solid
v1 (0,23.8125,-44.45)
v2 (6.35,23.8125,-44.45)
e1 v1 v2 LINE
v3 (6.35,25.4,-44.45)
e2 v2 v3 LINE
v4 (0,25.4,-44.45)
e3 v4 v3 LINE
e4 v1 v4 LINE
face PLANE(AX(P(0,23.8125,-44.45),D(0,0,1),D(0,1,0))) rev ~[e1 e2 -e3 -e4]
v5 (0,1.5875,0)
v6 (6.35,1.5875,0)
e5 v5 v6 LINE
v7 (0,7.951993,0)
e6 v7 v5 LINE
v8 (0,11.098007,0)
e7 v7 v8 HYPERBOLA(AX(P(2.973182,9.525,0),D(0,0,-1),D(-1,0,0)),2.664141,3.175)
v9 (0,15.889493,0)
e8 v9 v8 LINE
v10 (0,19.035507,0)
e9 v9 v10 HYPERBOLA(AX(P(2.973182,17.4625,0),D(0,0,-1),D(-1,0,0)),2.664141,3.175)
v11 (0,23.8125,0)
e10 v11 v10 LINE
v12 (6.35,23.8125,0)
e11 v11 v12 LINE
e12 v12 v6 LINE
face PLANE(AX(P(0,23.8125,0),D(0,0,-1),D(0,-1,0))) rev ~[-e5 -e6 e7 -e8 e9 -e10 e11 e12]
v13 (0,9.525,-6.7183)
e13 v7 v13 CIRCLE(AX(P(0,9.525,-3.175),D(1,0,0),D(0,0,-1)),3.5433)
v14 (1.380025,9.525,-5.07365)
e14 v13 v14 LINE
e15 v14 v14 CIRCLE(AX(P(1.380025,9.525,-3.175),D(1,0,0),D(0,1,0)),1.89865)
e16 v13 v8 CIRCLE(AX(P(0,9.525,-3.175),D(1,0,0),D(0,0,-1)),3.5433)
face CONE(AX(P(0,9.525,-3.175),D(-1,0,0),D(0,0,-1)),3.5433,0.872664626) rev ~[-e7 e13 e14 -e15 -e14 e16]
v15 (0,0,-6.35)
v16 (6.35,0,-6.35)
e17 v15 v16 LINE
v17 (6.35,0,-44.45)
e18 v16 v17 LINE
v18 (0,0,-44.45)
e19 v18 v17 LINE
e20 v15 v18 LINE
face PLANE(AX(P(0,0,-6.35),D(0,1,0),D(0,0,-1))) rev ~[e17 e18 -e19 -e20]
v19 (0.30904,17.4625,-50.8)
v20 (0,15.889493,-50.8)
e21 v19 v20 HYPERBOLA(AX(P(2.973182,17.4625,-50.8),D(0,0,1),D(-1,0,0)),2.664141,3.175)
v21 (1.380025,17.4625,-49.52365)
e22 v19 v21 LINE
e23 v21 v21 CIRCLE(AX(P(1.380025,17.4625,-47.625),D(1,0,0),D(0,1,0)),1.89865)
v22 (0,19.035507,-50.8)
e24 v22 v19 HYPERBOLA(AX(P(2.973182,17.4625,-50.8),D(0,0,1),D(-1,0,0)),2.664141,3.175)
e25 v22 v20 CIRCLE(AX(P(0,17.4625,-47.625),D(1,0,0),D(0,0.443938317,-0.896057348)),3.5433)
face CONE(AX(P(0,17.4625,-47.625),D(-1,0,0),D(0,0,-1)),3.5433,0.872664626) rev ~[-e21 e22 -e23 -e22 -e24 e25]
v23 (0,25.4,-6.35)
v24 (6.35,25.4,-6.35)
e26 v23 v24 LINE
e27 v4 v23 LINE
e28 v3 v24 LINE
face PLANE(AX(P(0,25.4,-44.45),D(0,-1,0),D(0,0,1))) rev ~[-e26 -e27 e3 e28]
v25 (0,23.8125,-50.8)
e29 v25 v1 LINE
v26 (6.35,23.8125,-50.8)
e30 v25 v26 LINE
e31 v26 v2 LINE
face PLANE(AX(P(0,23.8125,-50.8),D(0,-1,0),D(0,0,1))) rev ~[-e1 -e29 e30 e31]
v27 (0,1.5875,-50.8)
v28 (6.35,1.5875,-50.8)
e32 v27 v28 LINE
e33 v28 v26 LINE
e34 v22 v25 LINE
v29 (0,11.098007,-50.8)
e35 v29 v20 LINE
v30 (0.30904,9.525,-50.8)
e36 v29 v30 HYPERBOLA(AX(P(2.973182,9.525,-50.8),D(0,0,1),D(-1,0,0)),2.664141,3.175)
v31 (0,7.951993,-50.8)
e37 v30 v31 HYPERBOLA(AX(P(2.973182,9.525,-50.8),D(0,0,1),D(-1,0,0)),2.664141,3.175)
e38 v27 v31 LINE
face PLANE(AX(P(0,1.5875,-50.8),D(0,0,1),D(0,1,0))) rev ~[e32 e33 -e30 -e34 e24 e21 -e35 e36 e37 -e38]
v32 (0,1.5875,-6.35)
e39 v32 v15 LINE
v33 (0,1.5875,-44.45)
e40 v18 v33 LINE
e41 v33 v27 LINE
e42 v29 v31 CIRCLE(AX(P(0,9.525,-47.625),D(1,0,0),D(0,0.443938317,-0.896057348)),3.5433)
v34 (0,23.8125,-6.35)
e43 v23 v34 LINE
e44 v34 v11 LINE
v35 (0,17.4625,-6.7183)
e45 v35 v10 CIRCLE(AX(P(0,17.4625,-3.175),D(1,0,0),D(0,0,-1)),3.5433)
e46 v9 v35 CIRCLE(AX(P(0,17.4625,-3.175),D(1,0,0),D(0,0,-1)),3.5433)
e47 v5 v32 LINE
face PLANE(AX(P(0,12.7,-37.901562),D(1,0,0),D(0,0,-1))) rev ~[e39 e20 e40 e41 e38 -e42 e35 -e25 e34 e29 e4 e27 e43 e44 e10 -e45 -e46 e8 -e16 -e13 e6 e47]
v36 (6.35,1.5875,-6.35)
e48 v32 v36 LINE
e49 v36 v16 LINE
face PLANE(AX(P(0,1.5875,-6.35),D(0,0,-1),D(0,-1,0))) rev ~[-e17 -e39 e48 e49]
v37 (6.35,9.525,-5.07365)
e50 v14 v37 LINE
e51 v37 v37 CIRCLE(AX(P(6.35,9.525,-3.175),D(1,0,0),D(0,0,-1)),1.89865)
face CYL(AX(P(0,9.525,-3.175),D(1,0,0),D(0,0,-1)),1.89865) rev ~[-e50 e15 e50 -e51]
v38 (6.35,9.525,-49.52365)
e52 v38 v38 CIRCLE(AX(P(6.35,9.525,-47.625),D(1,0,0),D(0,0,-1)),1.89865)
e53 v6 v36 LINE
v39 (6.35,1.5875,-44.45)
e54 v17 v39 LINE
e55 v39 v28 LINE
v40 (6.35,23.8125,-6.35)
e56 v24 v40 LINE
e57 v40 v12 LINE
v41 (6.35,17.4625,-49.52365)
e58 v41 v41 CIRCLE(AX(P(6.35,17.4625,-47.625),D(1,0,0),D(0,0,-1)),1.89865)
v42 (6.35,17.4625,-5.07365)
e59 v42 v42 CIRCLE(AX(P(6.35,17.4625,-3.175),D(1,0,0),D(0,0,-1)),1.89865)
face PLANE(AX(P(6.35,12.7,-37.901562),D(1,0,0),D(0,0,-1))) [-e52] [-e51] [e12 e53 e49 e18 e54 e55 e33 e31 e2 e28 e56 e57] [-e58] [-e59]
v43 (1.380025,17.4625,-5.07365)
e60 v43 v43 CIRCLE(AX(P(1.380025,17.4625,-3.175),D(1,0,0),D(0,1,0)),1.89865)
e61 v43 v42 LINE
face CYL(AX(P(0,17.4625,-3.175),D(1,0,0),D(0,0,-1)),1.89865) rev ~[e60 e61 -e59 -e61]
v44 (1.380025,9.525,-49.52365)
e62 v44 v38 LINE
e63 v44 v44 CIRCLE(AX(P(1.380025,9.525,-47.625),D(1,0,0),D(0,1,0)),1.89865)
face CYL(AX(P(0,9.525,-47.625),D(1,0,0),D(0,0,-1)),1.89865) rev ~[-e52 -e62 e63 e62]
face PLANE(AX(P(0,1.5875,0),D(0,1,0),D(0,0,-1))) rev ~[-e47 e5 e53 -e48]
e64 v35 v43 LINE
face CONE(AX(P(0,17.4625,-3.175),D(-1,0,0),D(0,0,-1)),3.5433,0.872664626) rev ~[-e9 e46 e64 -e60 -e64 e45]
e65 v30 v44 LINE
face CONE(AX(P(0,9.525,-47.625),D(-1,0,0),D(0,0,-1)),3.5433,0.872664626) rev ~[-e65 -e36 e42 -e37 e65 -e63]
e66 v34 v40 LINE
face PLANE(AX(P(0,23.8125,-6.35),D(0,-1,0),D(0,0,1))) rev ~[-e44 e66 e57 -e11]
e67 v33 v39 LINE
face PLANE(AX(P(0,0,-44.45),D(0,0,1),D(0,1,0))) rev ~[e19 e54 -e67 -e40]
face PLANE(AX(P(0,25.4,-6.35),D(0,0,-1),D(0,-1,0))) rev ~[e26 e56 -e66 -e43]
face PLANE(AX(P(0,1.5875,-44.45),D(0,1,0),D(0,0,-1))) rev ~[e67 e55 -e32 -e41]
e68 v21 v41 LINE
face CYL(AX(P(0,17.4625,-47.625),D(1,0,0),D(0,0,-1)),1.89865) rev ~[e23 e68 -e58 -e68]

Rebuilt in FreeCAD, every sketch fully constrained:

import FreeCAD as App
import Part
import Sketcher
Q = App.Units.Quantity


def add_polygon(sketch, points):
    """Adds a closed chain of lines whose ends are joined by coincident constraints."""
    first, n = sketch.GeometryCount, len(points)
    for a, b in zip(points, points[1:] + points[:1]):
        sketch.addGeometry(Part.LineSegment(App.Vector(*a, 0), App.Vector(*b, 0)), False)
    for i in range(n):
        sketch.addConstraint(Sketcher.Constraint("Coincident", first + i, 2, first + (i + 1) % n, 1))

doc = App.newDocument("Part")
body = doc.addObject("PartDesign::Body", "Body")

sketch1 = body.newObject("Sketcher::SketchObject", "Sketch")
sketch1.AttachmentSupport = (doc.getObject("YZ_Plane"), [""])
sketch1.MapMode = "FlatFace"
add_polygon(sketch1, [(25.4, -44.5), (25.4, -6.3), (23.8, -6.3), (23.8, 0), (1.6, 0), (1.6, -6.3), (0, -6.3), (0, -44.5), (1.6, -44.5), (1.6, -50.8), (23.8, -50.8), (23.8, -44.5)])
sketch1.addConstraint([
    Sketcher.Constraint("Vertical", 0),
    Sketcher.Constraint("Horizontal", 1),
    Sketcher.Constraint("Vertical", 2),
    Sketcher.Constraint("Horizontal", 3),
    Sketcher.Constraint("Vertical", 4),
    Sketcher.Constraint("Horizontal", 5),
    Sketcher.Constraint("Vertical", 6),
    Sketcher.Constraint("Horizontal", 7),
    Sketcher.Constraint("Vertical", 8),
    Sketcher.Constraint("Horizontal", 9),
    Sketcher.Constraint("Vertical", 10),
    Sketcher.Constraint("Horizontal", 11),
    Sketcher.Constraint("PointOnObject", 2, 2, -1),
    Sketcher.Constraint("PointOnObject", 5, 2, -2),
    Sketcher.Constraint("Horizontal", 1, 2, 4, 2),
    Sketcher.Constraint("Horizontal", 7, 2, 10, 2),
    Sketcher.Constraint("Vertical", 4, 2, 7, 2),
    Sketcher.Constraint("Vertical", 2, 2, 9, 2),
    Sketcher.Constraint("Equal", 1, 5),
    Sketcher.Constraint("Equal", 4, 8),
    Sketcher.Constraint("DistanceY", 0, 1, 0, 2, Q("1.5 in")),
    Sketcher.Constraint("DistanceX", -1, 1, 0, 2, Q("1 in")),
    Sketcher.Constraint("DistanceY", 8, 2, -1, 1, Q("2 in")),
    Sketcher.Constraint("DistanceX", 1, 2, 1, 1, Q("0.0625 in")),
])
pad1 = body.newObject("PartDesign::Pad", "Pad")
pad1.Profile = sketch1
pad1.Length = Q("0.25 in")

sketch2 = body.newObject("Sketcher::SketchObject", "Sketch001")
sketch2.AttachmentSupport = (doc.getObject("YZ_Plane"), [""])
sketch2.MapMode = "FlatFace"
sketch2.addGeometry([
    Part.Circle(App.Vector(17.5, -47.6, 0), App.Vector(0, 0, 1), 1.9),
    Part.Circle(App.Vector(9.5, -47.6, 0), App.Vector(0, 0, 1), 1.9),
    Part.Circle(App.Vector(17.5, -3.2, 0), App.Vector(0, 0, 1), 1.9),
    Part.Circle(App.Vector(9.5, -3.2, 0), App.Vector(0, 0, 1), 1.9),
], False)
sketch2.addConstraint([
    Sketcher.Constraint("Equal", 0, 1),
    Sketcher.Constraint("Equal", 1, 2),
    Sketcher.Constraint("Equal", 2, 3),
    Sketcher.Constraint("Horizontal", 0, 3, 1, 3),
    Sketcher.Constraint("Horizontal", 2, 3, 3, 3),
    Sketcher.Constraint("Vertical", 0, 3, 2, 3),
    Sketcher.Constraint("Vertical", 1, 3, 3, 3),
    Sketcher.Constraint("Diameter", 0, Q("0.1495 in")),
    Sketcher.Constraint("DistanceY", 0, 3, 2, 3, Q("1.75 in")),
    Sketcher.Constraint("DistanceX", -1, 1, 0, 3, Q("0.6875 in")),
    Sketcher.Constraint("DistanceY", 0, 3, -1, 1, Q("1.875 in")),
    Sketcher.Constraint("DistanceX", -1, 1, 1, 3, Q("0.375 in")),
])
doc.recompute()
hole = body.newObject("PartDesign::Hole", "Hole")
hole.Profile = sketch2
hole.ThreadType = "None"
hole.Diameter = Q("0.1495 in")
hole.DepthType = "ThroughAll"
hole.HoleCutType = "Countersink"
hole.HoleCutDiameter = Q("0.279 in")
hole.HoleCutCountersinkAngle = 100
hole.Reversed = True

doc.recompute()
